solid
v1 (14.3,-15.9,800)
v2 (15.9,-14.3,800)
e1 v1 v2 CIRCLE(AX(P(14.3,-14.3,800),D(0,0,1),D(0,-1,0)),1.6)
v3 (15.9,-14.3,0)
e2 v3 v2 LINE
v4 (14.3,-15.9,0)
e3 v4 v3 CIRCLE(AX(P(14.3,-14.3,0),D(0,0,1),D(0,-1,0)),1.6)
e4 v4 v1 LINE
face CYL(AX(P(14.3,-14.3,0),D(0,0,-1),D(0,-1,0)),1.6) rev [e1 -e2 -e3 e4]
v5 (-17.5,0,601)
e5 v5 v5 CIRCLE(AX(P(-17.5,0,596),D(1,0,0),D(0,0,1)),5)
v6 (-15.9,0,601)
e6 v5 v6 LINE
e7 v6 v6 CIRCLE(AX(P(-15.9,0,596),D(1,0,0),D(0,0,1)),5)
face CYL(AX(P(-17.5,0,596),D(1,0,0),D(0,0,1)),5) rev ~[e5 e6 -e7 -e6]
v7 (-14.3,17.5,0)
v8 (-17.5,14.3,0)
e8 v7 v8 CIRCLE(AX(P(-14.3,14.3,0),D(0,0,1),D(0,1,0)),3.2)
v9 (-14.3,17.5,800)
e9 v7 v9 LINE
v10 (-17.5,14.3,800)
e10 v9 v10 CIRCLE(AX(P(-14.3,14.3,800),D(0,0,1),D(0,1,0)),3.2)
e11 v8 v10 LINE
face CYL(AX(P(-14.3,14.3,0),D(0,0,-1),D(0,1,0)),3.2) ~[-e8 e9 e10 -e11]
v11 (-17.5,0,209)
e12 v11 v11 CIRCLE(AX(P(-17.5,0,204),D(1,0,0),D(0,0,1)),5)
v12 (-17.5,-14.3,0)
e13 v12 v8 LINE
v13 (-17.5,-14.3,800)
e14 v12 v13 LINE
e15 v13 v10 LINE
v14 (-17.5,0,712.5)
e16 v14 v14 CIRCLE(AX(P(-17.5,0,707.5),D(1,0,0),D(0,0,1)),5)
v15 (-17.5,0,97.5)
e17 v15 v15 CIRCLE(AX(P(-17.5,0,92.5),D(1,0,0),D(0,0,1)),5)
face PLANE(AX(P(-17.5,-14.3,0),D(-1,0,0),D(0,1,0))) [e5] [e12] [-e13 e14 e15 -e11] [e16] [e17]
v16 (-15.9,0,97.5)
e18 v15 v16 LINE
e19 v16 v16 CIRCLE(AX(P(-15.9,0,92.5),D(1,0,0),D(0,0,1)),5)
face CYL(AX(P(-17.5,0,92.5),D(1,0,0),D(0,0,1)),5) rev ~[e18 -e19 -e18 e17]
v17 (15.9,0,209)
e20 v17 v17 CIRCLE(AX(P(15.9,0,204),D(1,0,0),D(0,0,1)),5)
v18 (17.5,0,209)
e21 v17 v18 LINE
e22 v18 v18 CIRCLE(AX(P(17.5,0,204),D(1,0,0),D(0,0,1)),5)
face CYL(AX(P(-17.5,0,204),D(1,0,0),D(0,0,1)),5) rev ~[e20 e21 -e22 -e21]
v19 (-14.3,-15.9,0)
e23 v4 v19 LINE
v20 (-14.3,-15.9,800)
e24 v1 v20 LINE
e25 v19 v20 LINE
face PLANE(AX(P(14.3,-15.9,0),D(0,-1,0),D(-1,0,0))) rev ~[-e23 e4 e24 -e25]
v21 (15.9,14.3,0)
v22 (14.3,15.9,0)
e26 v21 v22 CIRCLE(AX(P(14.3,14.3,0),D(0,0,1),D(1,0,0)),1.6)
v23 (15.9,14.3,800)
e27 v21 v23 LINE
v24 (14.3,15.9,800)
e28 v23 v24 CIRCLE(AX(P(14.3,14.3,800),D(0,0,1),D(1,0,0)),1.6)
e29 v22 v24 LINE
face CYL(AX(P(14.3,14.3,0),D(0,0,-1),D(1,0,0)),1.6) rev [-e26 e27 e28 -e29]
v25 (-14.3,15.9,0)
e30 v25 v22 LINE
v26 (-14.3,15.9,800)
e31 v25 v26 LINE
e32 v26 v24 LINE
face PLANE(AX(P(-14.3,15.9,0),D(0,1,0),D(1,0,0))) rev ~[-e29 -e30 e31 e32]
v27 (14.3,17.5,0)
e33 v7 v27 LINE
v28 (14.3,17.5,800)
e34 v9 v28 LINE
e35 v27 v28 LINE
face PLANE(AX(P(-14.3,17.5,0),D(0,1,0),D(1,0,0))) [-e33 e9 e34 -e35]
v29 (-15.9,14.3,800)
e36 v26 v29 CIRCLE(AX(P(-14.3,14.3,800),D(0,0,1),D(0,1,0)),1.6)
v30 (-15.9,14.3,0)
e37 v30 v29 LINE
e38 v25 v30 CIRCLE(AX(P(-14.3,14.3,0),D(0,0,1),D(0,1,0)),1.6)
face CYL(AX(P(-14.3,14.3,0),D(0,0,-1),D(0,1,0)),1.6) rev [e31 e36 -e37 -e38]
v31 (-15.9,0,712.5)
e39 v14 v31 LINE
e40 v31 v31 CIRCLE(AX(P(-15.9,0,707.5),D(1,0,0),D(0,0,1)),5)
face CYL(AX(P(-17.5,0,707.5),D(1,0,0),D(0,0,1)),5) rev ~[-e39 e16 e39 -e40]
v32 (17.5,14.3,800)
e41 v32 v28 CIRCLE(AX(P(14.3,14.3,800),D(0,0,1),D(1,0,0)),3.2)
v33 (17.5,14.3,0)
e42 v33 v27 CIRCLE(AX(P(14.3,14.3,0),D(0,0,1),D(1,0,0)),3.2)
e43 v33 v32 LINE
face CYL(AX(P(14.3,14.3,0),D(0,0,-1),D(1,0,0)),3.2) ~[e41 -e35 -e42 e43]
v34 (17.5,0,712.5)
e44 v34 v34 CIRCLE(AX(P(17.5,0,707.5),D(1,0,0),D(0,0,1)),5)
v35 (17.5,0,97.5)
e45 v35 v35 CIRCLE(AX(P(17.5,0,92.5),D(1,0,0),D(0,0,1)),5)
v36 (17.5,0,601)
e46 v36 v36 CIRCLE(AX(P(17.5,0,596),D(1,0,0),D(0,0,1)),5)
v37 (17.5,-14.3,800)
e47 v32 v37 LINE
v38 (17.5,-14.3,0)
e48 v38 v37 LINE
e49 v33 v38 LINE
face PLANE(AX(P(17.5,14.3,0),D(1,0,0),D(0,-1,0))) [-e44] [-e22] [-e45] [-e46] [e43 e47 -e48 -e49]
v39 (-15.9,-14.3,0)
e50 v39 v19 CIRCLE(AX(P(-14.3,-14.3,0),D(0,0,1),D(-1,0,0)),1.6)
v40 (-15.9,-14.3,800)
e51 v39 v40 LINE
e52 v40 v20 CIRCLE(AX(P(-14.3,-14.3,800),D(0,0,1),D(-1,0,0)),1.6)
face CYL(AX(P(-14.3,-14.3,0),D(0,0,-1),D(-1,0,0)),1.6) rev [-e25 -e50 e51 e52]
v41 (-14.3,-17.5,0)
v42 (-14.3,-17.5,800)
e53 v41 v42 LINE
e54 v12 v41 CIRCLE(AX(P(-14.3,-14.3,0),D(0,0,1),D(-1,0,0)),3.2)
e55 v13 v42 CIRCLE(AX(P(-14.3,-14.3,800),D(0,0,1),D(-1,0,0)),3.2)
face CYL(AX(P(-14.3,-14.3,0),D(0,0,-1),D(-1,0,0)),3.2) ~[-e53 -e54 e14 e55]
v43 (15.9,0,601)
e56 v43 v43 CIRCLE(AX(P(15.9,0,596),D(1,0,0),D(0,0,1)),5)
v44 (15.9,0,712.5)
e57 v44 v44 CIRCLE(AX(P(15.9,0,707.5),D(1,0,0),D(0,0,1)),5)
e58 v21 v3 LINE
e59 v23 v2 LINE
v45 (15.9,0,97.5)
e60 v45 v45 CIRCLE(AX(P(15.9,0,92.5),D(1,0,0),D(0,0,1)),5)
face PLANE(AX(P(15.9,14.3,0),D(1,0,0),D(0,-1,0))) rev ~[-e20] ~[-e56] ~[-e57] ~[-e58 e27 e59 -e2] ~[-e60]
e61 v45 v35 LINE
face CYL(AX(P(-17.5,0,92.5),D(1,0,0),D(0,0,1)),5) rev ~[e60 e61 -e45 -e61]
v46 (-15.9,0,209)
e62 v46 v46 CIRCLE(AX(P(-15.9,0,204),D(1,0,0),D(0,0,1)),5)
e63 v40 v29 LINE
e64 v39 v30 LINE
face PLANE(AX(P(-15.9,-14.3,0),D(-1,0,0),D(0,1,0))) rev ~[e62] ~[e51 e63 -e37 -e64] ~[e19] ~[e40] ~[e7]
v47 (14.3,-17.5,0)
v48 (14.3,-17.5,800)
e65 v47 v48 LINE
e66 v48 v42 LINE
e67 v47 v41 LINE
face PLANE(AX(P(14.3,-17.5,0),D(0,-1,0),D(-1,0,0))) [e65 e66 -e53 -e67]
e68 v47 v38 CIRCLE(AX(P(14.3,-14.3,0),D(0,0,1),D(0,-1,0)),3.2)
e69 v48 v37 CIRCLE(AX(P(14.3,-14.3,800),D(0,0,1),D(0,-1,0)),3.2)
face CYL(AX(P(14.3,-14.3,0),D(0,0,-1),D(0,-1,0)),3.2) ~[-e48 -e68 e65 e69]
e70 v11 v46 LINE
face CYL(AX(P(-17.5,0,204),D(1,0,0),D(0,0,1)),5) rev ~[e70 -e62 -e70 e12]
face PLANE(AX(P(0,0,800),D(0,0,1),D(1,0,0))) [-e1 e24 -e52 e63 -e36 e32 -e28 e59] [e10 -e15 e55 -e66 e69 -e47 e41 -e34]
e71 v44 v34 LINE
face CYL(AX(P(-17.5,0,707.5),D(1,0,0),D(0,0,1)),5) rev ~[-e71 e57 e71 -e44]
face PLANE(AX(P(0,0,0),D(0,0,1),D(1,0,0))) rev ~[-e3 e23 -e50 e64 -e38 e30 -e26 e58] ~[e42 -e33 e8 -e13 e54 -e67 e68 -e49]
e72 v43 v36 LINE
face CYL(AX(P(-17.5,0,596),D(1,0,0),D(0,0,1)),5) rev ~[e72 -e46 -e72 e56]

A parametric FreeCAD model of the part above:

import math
import FreeCAD as App
import Part
import Sketcher

V = App.Vector

doc = App.newDocument("Part")
body = doc.addObject("PartDesign::Body", "Body")

sketch1 = body.newObject("Sketcher::SketchObject", "Sketch")
sketch1.AttachmentSupport = (doc.getObject("XY_Plane"), [""])
sketch1.MapMode = "FlatFace"
sketch1.addGeometry([
    Part.LineSegment(V(-17.5, 14.3, 0), V(-17.5, -14.3, 0)),
    Part.ArcOfCircle(Part.Circle(V(-14.3, -14.3, 0), V(0, 0, 1), 3.2), math.radians(180), math.radians(270)),
    Part.LineSegment(V(-14.3, -17.5, 0), V(14.3, -17.5, 0)),
    Part.ArcOfCircle(Part.Circle(V(14.3, -14.3, 0), V(0, 0, 1), 3.2), math.radians(-90), math.radians(0)),
    Part.LineSegment(V(17.5, -14.3, 0), V(17.5, 14.3, 0)),
    Part.ArcOfCircle(Part.Circle(V(14.3, 14.3, 0), V(0, 0, 1), 3.2), math.radians(0), math.radians(90)),
    Part.LineSegment(V(14.3, 17.5, 0), V(-14.3, 17.5, 0)),
    Part.ArcOfCircle(Part.Circle(V(-14.3, 14.3, 0), V(0, 0, 1), 3.2), math.radians(90), math.radians(180)),
    Part.ArcOfCircle(Part.Circle(V(-14.3, 14.3, 0), V(0, 0, 1), 1.6), math.radians(90), math.radians(180)),
    Part.LineSegment(V(-14.3, 15.9, 0), V(14.3, 15.9, 0)),
    Part.ArcOfCircle(Part.Circle(V(14.3, 14.3, 0), V(0, 0, 1), 1.6), math.radians(0), math.radians(90)),
    Part.LineSegment(V(15.9, 14.3, 0), V(15.9, -14.3, 0)),
    Part.ArcOfCircle(Part.Circle(V(14.3, -14.3, 0), V(0, 0, 1), 1.6), math.radians(-90), math.radians(0)),
    Part.LineSegment(V(14.3, -15.9, 0), V(-14.3, -15.9, 0)),
    Part.ArcOfCircle(Part.Circle(V(-14.3, -14.3, 0), V(0, 0, 1), 1.6), math.radians(180), math.radians(270)),
    Part.LineSegment(V(-15.9, -14.3, 0), V(-15.9, 14.3, 0)),
], False)
sketch1.addConstraint([
    Sketcher.Constraint("Tangent", 0, 2, 1, 1),
    Sketcher.Constraint("Tangent", 1, 2, 2, 1),
    Sketcher.Constraint("Tangent", 2, 2, 3, 1),
    Sketcher.Constraint("Tangent", 3, 2, 4, 1),
    Sketcher.Constraint("Tangent", 4, 2, 5, 1),
    Sketcher.Constraint("Tangent", 5, 2, 6, 1),
    Sketcher.Constraint("Tangent", 6, 2, 7, 1),
    Sketcher.Constraint("Tangent", 7, 2, 0, 1),
    Sketcher.Constraint("Tangent", 8, 1, 9, 1),
    Sketcher.Constraint("Tangent", 9, 2, 10, 2),
    Sketcher.Constraint("Tangent", 10, 1, 11, 1),
    Sketcher.Constraint("Tangent", 11, 2, 12, 2),
    Sketcher.Constraint("Tangent", 12, 1, 13, 1),
    Sketcher.Constraint("Tangent", 13, 2, 14, 2),
    Sketcher.Constraint("Tangent", 14, 1, 15, 1),
    Sketcher.Constraint("Tangent", 15, 2, 8, 2),
    Sketcher.Constraint("Vertical", 0),
    Sketcher.Constraint("Horizontal", 2),
    Sketcher.Constraint("Vertical", 4),
    Sketcher.Constraint("Horizontal", 6),
    Sketcher.Constraint("Horizontal", 9),
    Sketcher.Constraint("Vertical", 11),
    Sketcher.Constraint("Horizontal", 13),
    Sketcher.Constraint("Vertical", 15),
    Sketcher.Constraint("Coincident", 8, 3, 7, 3),
    Sketcher.Constraint("Coincident", 10, 3, 5, 3),
    Sketcher.Constraint("Coincident", 12, 3, 3, 3),
    Sketcher.Constraint("Equal", 1, 3),
    Sketcher.Constraint("Equal", 3, 5),
    Sketcher.Constraint("Equal", 5, 7),
    Sketcher.Constraint("Equal", 12, 14),
    Sketcher.Constraint("Symmetric", 1, 3, 5, 3, -1, 1),
    Sketcher.Constraint("Equal", 13, 0),
    Sketcher.Constraint("Radius", 1, 3.2),
    Sketcher.Constraint("Radius", 8, 1.6),
    Sketcher.Constraint("DistanceX", 0, 2, -1, 1, 17.5),
])
pad1 = body.newObject("PartDesign::Pad", "Pad")
pad1.Profile = sketch1
pad1.Length = 800

sketch2 = body.newObject("Sketcher::SketchObject", "Sketch001")
sketch2.AttachmentSupport = (doc.getObject("YZ_Plane"), [""])
sketch2.MapMode = "FlatFace"
sketch2.AttachmentOffset = App.Placement(V(0, 0, -17.5), App.Rotation())
sketch2.addGeometry([
    Part.Circle(V(0, 92, 0), V(0, 0, 1), 5),
    Part.Circle(V(0, 204, 0), V(0, 0, 1), 5),
    Part.Circle(V(0, 596, 0), V(0, 0, 1), 5),
    Part.Circle(V(0, 708, 0), V(0, 0, 1), 5),
], False)
sketch2.addConstraint([
    Sketcher.Constraint("Equal", 0, 1),
    Sketcher.Constraint("Equal", 1, 2),
    Sketcher.Constraint("Equal", 2, 3),
    Sketcher.Constraint("PointOnObject", 0, 3, -2),
    Sketcher.Constraint("PointOnObject", 1, 3, -2),
    Sketcher.Constraint("PointOnObject", 2, 3, -2),
    Sketcher.Constraint("PointOnObject", 3, 3, -2),
    Sketcher.Constraint("Diameter", 0, 10.0),
    Sketcher.Constraint("DistanceY", -1, 1, 1, 3, 204.0),
    Sketcher.Constraint("DistanceY", -1, 1, 2, 3, 596.0),
    Sketcher.Constraint("DistanceY", 0, 3, 3, 3, 615.0),
    Sketcher.Constraint("DistanceY", -1, 1, 0, 3, 92.5),
])
doc.recompute()
hole = body.newObject("PartDesign::Hole", "Hole")
hole.Profile = sketch2
hole.ThreadType = "None"
hole.Diameter = 10
hole.DepthType = "ThroughAll"
hole.Reversed = True

doc.recompute()
